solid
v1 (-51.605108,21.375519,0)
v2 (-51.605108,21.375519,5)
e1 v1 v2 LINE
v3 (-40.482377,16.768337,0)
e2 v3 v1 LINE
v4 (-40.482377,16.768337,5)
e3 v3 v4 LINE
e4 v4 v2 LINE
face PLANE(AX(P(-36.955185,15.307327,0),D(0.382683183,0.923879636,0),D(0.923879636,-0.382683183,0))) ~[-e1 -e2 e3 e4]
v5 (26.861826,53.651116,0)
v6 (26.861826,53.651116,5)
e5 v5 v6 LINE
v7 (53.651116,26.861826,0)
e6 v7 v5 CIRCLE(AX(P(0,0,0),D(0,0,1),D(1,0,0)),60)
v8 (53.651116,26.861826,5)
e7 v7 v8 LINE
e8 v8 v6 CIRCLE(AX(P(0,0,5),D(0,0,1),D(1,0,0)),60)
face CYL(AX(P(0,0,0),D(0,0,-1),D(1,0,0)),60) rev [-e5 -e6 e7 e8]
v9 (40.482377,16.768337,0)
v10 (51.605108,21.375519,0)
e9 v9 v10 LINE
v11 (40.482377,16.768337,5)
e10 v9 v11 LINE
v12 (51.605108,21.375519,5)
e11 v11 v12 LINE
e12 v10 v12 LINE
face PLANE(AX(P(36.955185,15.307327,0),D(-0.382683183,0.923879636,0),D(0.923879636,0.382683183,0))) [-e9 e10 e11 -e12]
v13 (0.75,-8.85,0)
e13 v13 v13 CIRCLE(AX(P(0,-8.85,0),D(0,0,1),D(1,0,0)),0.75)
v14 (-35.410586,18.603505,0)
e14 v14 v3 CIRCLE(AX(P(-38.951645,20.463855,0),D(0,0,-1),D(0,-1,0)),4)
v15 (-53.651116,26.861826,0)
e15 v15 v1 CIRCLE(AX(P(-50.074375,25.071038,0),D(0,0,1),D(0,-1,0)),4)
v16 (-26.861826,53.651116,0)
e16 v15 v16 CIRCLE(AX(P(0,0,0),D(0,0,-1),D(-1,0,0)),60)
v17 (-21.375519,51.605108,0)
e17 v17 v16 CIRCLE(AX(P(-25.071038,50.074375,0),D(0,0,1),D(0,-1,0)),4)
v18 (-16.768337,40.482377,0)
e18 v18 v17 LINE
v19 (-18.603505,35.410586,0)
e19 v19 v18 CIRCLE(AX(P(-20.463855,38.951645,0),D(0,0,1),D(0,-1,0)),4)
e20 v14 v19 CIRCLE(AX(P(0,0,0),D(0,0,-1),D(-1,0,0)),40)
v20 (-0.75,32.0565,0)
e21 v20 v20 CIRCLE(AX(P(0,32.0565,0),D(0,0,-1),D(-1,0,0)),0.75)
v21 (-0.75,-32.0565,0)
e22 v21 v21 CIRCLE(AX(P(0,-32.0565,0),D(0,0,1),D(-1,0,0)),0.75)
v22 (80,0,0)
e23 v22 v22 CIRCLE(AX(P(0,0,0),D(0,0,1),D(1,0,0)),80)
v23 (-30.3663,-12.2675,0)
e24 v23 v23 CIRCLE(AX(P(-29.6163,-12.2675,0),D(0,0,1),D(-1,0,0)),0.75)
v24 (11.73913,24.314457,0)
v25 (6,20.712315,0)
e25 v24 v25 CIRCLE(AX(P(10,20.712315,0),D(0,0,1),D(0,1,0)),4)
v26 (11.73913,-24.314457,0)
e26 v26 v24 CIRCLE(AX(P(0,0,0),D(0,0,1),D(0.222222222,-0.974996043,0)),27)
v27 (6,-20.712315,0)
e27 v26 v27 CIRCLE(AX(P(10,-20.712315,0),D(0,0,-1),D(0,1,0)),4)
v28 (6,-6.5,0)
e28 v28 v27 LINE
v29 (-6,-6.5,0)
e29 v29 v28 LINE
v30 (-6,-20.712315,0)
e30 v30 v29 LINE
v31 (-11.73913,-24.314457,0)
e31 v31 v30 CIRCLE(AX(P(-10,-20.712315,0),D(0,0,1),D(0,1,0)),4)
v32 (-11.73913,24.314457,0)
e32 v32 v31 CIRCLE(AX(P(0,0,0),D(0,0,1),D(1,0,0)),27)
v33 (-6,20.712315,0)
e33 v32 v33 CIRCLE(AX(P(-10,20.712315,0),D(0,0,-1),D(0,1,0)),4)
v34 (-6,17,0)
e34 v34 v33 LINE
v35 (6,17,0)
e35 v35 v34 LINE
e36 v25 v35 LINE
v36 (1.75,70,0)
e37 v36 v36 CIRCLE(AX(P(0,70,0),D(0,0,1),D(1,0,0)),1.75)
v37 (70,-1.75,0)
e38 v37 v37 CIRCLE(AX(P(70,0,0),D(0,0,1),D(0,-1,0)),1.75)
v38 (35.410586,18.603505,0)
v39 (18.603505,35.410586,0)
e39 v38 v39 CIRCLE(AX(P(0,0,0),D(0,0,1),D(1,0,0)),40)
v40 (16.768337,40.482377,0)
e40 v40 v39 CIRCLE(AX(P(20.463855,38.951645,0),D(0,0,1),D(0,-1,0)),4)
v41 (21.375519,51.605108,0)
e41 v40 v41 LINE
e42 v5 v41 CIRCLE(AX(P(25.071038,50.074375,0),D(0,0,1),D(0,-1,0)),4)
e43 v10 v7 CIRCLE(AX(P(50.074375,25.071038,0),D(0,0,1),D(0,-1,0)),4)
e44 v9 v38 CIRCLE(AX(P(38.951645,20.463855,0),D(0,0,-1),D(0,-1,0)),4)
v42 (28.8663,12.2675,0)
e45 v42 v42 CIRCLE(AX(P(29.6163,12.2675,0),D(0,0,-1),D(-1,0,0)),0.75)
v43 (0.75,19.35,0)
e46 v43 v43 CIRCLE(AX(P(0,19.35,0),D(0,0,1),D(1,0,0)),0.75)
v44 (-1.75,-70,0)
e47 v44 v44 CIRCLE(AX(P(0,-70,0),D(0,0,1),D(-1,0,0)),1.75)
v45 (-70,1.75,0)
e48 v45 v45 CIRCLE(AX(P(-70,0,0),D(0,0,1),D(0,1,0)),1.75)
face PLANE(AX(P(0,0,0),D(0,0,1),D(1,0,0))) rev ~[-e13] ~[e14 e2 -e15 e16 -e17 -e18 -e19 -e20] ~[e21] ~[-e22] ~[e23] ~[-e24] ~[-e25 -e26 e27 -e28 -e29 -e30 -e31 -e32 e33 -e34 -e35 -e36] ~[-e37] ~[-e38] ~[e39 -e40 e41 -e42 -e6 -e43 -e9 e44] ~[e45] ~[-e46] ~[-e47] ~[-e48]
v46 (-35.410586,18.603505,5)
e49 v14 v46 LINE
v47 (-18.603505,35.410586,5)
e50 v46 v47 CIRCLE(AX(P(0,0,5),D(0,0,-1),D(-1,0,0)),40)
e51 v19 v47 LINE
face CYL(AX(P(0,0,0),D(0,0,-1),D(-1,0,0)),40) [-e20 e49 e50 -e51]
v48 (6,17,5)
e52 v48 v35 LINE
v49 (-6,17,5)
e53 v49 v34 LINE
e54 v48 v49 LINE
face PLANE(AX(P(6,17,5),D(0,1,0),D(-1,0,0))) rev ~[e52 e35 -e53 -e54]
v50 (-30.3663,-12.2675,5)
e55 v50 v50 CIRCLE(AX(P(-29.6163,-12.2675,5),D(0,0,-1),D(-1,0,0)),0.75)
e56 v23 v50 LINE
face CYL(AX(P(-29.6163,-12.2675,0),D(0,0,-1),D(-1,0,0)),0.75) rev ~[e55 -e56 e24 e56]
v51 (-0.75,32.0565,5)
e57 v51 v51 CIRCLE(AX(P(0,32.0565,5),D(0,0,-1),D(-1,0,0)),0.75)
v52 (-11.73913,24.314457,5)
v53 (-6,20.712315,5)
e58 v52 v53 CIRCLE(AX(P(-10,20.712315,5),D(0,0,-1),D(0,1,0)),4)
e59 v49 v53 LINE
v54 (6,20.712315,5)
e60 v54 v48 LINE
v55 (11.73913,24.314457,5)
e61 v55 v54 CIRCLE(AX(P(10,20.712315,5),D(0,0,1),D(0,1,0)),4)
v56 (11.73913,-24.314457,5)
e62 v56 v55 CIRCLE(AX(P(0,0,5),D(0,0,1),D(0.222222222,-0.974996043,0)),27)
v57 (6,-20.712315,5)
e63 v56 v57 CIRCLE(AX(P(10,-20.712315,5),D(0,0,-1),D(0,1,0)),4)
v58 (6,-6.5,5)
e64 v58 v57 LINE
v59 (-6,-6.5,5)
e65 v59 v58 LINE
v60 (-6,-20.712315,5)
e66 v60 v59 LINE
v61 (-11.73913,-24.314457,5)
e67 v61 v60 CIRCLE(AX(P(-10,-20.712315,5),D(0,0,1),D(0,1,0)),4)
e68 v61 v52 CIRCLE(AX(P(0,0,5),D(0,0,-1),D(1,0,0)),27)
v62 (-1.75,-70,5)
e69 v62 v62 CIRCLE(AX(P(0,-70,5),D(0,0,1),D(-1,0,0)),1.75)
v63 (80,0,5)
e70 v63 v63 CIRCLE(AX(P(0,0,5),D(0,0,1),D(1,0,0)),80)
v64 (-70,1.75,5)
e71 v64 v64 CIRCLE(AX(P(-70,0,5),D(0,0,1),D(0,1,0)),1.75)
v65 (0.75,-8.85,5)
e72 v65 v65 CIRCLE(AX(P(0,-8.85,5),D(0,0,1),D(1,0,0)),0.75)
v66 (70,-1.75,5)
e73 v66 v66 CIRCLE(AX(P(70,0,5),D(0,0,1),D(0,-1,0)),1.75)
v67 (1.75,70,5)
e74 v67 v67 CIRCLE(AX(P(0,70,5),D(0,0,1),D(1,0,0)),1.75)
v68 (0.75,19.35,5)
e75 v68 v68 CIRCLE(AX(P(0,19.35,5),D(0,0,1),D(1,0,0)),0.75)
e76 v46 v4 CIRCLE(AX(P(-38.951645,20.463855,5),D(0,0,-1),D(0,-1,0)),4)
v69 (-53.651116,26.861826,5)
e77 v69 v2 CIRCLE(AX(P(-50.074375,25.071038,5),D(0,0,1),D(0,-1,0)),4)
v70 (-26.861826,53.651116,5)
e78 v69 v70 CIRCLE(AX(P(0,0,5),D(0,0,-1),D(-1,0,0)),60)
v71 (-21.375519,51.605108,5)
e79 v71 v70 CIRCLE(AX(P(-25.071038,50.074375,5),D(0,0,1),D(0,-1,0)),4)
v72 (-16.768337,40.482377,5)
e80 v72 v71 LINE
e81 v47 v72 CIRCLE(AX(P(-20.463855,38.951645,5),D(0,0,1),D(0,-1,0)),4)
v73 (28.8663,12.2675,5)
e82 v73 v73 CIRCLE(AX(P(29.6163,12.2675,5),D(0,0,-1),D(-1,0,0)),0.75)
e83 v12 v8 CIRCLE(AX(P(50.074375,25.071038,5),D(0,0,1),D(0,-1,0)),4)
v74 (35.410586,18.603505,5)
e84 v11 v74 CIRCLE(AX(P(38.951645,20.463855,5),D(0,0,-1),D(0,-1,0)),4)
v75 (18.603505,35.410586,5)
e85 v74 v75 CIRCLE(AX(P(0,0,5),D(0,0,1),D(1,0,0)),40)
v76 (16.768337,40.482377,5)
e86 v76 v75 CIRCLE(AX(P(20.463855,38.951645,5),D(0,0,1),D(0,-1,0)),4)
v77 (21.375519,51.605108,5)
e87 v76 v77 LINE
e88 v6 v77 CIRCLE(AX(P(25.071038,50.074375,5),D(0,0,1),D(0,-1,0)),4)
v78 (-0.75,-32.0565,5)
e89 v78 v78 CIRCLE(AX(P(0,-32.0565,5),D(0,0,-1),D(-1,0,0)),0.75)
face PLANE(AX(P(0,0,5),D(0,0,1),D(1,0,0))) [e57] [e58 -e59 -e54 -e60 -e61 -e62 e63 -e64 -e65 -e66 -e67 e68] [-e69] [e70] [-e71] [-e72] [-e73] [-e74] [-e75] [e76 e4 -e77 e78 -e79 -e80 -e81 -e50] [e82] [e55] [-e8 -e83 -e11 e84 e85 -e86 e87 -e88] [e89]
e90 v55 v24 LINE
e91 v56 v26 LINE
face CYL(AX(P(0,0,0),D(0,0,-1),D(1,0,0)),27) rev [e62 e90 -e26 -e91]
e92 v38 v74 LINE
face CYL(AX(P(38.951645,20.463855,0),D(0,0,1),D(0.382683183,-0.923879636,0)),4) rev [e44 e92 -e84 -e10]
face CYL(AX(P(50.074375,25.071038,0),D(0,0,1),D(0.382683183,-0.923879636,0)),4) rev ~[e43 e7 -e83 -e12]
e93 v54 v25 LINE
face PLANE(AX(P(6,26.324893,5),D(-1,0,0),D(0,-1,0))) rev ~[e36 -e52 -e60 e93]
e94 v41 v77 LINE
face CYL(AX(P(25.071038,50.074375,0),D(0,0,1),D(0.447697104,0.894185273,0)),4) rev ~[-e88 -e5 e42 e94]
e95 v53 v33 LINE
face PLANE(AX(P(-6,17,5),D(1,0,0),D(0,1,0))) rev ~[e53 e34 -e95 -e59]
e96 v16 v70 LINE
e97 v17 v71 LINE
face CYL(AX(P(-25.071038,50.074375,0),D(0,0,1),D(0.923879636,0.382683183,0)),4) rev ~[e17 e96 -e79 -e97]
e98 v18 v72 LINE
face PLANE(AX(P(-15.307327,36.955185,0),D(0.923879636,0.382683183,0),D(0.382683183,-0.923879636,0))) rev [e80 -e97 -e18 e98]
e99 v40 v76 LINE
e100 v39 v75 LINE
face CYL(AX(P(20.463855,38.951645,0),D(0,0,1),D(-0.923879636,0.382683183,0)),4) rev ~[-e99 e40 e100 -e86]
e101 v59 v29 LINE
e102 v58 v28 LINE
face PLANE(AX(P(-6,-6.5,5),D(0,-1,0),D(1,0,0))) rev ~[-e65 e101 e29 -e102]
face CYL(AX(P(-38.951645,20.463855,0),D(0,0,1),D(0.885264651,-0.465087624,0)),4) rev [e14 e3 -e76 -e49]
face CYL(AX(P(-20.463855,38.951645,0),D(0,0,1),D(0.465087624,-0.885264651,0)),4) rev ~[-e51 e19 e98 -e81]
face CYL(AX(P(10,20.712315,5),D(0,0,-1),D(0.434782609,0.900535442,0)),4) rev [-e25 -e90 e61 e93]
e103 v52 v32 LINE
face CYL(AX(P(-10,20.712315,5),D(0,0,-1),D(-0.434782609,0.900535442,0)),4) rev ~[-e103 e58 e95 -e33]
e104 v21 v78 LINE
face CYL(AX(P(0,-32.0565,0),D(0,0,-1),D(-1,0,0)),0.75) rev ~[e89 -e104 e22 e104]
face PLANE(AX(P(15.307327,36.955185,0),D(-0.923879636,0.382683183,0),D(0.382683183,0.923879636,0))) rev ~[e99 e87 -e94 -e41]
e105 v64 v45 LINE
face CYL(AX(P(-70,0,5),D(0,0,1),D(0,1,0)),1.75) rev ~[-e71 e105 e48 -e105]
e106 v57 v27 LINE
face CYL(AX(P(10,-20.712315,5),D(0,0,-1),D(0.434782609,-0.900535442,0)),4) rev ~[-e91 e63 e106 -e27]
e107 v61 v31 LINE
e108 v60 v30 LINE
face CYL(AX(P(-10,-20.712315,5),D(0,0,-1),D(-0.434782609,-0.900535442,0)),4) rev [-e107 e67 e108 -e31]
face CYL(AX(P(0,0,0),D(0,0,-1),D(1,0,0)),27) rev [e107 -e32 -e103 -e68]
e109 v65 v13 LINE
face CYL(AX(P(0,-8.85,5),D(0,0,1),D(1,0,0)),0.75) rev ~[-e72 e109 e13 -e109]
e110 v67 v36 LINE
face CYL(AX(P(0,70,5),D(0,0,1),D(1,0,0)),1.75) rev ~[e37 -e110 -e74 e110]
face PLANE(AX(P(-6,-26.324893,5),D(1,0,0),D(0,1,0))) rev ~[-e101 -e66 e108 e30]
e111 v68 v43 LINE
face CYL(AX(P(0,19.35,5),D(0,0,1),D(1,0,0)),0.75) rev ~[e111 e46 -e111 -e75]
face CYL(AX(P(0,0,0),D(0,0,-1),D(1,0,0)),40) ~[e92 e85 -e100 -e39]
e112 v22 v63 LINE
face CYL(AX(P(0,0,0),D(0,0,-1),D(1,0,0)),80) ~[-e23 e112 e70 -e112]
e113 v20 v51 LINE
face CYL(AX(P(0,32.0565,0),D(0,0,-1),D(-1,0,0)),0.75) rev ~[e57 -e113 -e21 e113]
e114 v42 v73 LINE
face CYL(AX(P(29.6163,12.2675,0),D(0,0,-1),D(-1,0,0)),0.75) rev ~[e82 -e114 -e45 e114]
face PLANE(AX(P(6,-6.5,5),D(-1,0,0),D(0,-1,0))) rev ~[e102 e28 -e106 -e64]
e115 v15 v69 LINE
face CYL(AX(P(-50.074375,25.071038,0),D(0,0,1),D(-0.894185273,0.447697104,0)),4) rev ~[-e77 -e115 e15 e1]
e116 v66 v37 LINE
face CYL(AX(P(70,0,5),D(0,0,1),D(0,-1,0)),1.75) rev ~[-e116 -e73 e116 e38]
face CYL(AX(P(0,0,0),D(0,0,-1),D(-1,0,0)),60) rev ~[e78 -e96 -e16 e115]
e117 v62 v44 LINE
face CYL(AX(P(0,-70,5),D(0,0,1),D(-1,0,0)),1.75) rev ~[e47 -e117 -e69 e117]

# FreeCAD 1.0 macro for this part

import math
import FreeCAD as App
import Part
import Sketcher

V = App.Vector
Q = App.Units.Quantity


def edges_at(feature, points):
    """Names of the edges that pass closest to the given points."""
    edges = feature.Shape.Edges
    near = lambda p: min(range(len(edges)), key=lambda i: edges[i].distToShape(Part.Vertex(*p))[0])
    return sorted({f"Edge{near(p) + 1}" for p in points})

doc = App.newDocument("Part")
body = doc.addObject("PartDesign::Body", "Body")

# Sketch on XY plane
sketch1 = doc.addObject("Sketcher::SketchObject", "Sketch")
body.addObject(sketch1)
sketch1.AttachmentSupport = (doc.XY_Plane, [""])
sketch1.MapMode = "FlatFace"
sketch1.addGeometry([
    Part.Circle(V(0, 0, 0), V(0, 0, 1), 80),
    Part.Circle(V(0, 0, 0), V(0, 0, 1), 27),
], False)
sketch1.addConstraint([
    Sketcher.Constraint("Coincident", 0, 3, -1, 1),
    Sketcher.Constraint("Coincident", 1, 3, -1, 1),
    Sketcher.Constraint("Diameter", 0, Q("160 mm")),
    Sketcher.Constraint("Diameter", 1, Q("54 mm")),
])
pad1 = doc.addObject("PartDesign::Pad", "Pad")
body.addObject(pad1)
pad1.Profile = sketch1
pad1.Length = 5

# Sketch on XY plane
sketch2 = doc.addObject("Sketcher::SketchObject", "Sketch001")
body.addObject(sketch2)
sketch2.AttachmentSupport = (doc.XY_Plane, [""])
sketch2.MapMode = "FlatFace"
sketch2.addGeometry([
    Part.ArcOfCircle(Part.Circle(V(0, 0, 0), V(0, 0, 1), 40), math.radians(22.499985), math.radians(67.500015)),
    Part.LineSegment(V(36.955185, 15.307327, 0), V(55.4328, 22.961, 0)),
    Part.ArcOfCircle(Part.Circle(V(0, 0, 0), V(0, 0, 1), 60), math.radians(22.499985), math.radians(67.500015)),
    Part.LineSegment(V(22.961, 55.4328, 0), V(15.307327, 36.955185, 0)),
], False)
sketch2.addConstraint([
    Sketcher.Constraint("Coincident", 0, 1, 1, 1),
    Sketcher.Constraint("Coincident", 1, 2, 2, 1),
    Sketcher.Constraint("Coincident", 2, 2, 3, 1),
    Sketcher.Constraint("Coincident", 3, 2, 0, 2),
    Sketcher.Constraint("Coincident", 0, 3, -1, 1),
    Sketcher.Constraint("Coincident", 2, 3, -1, 1),
    Sketcher.Constraint("Radius", 0, Q("40 mm")),
    Sketcher.Constraint("Radius", 2, Q("60 mm")),
    Sketcher.Constraint("Angle", 1, Q("22.5 deg")),
    Sketcher.Constraint("Angle", 3, Q("-112.5 deg")),
    Sketcher.Constraint("DistanceY", -1, 1, 1, 2, Q("22.961 mm")),
    Sketcher.Constraint("DistanceX", -1, 1, 2, 2, Q("22.961 mm")),
])
pocket1 = doc.addObject("PartDesign::Pocket", "Pocket")
body.addObject(pocket1)
pocket1.Profile = sketch2
pocket1.Length = 5
pocket1.Reversed = True
doc.recompute()

fillet = doc.addObject("PartDesign::Fillet", "Fillet")
body.addObject(fillet)
fillet.Base = (pocket1, edges_at(pocket1, [
    (22.961, 55.433, 2.5),
    (15.307, 36.955, 2.5),
    (36.955, 15.307, 2.5),
    (55.433, 22.961, 2.5),
]))
fillet.Radius = 4

# Sketch on XY plane
sketch3 = doc.addObject("Sketcher::SketchObject", "Sketch002")
body.addObject(sketch3)
sketch3.AttachmentSupport = (doc.XY_Plane, [""])
sketch3.MapMode = "FlatFace"
sketch3.AttachmentOffset = App.Placement(V(0, 0, 5), App.Rotation())
sketch3.addGeometry(Part.Circle(V(0, 70, 0), V(0, 0, 1), 1.75), False)
sketch3.addConstraint([
    Sketcher.Constraint("PointOnObject", 0, 3, -2),
    Sketcher.Constraint("Diameter", 0, Q("3.5 mm")),
    Sketcher.Constraint("DistanceY", -1, 1, 0, 3, Q("70 mm")),
])
pocket2 = doc.addObject("PartDesign::Pocket", "Pocket001")
body.addObject(pocket2)
pocket2.Profile = sketch3
pocket2.Length = 5
doc.recompute()

polarpattern = doc.addObject("PartDesign::PolarPattern", "PolarPattern")
body.addObject(polarpattern)
polarpattern.Originals = [pocket2]
polarpattern.Axis = (doc.Z_Axis, [""])
polarpattern.Angle = 360
polarpattern.Occurrences = 4
body.Tip = polarpattern

# Sketch on XY plane
sketch4 = doc.addObject("Sketcher::SketchObject", "Sketch003")
body.addObject(sketch4)
sketch4.AttachmentSupport = (doc.XY_Plane, [""])
sketch4.MapMode = "FlatFace"
sketch4.AttachmentOffset = App.Placement(V(0, 0, 5), App.Rotation())
sketch4.addGeometry([
    Part.ArcOfCircle(Part.Circle(V(0, 0, 0), V(0, 0, 1), 27), math.radians(77.160412), math.radians(102.839588)),  # 0
    Part.LineSegment(V(-6, 26.324893, 0), V(-6, 17, 0)),  # 1
    Part.LineSegment(V(-6, 17, 0), V(6, 17, 0)),  # 2
    Part.LineSegment(V(6, 17, 0), V(6, 26.324893, 0)),  # 3
    Part.Circle(V(0, 19.35, 0), V(0, 0, 1), 0.75),  # 4
    Part.LineSegment(V(-6, -6.5, 0), V(-6, -26.324893, 0)),  # 5
    Part.ArcOfCircle(Part.Circle(V(0, 0, 0), V(0, 0, 1), 27), math.radians(-102.839588), math.radians(-77.160412)),  # 6
    Part.LineSegment(V(6, -26.324893, 0), V(6, -6.5, 0)),  # 7
    Part.LineSegment(V(6, -6.5, 0), V(-6, -6.5, 0)),  # 8
    Part.Circle(V(0, -8.85, 0), V(0, 0, 1), 0.75),  # 9
], False)
sketch4.addConstraint([
    Sketcher.Constraint("Coincident", 0, 2, 1, 1),
    Sketcher.Constraint("Coincident", 1, 2, 2, 1),
    Sketcher.Constraint("Coincident", 2, 2, 3, 1),
    Sketcher.Constraint("Coincident", 3, 2, 0, 1),
    Sketcher.Constraint("Coincident", 5, 2, 6, 1),
    Sketcher.Constraint("Coincident", 6, 2, 7, 1),
    Sketcher.Constraint("Coincident", 7, 2, 8, 1),
    Sketcher.Constraint("Coincident", 8, 2, 5, 1),
    Sketcher.Constraint("Vertical", 1),
    Sketcher.Constraint("Horizontal", 2),
    Sketcher.Constraint("Vertical", 3),
    Sketcher.Constraint("Vertical", 5),
    Sketcher.Constraint("Vertical", 7),
    Sketcher.Constraint("Horizontal", 8),
    Sketcher.Constraint("Coincident", 0, 3, -1, 1),
    Sketcher.Constraint("Coincident", 6, 3, -1, 1),
    Sketcher.Constraint("Equal", 0, 6),
    Sketcher.Constraint("Equal", 4, 9),
    Sketcher.Constraint("PointOnObject", 4, 3, -2),
    Sketcher.Constraint("PointOnObject", 9, 3, -2),
    Sketcher.Constraint("Horizontal", 0, 2, 3, 2),
    Sketcher.Constraint("Horizontal", 5, 2, 6, 2),
    Sketcher.Constraint("Vertical", 1, 2, 5, 2),
    Sketcher.Constraint("Diameter", 4, Q("1.5 mm")),
    Sketcher.Constraint("DistanceX", 2, 1, 2, 2, Q("12 mm")),
    Sketcher.Constraint("Radius", 0, Q("27 mm")),
    Sketcher.Constraint("DistanceY", 9, 3, 4, 3, Q("28.2 mm")),
    Sketcher.Constraint("DistanceY", -1, 1, 1, 2, Q("17 mm")),
    Sketcher.Constraint("DistanceY", 7, 2, -1, 1, Q("6.5 mm")),
    Sketcher.Constraint("DistanceY", -1, 1, 4, 3, Q("19.35 mm")),
])
pad2 = doc.addObject("PartDesign::Pad", "Pad001")
body.addObject(pad2)
pad2.Profile = sketch4
pad2.Length = 5
pad2.Reversed = True
doc.recompute()

fillet2 = doc.addObject("PartDesign::Fillet", "Fillet001")
body.addObject(fillet2)
fillet2.Base = (pad2, edges_at(pad2, [
    (-6, 26.325, 2.5),
    (6, 26.325, 2.5),
    (-6, -26.325, 2.5),
    (6, -26.325, 2.5),
]))
fillet2.Radius = 4

# Sketch on XY plane
sketch5 = doc.addObject("Sketcher::SketchObject", "Sketch004")
body.addObject(sketch5)
sketch5.AttachmentSupport = (doc.XY_Plane, [""])
sketch5.MapMode = "FlatFace"
sketch5.addGeometry([
    Part.Circle(V(0, -32.0565, 0), V(0, 0, 1), 0.75),
    Part.Circle(V(-29.6163, -12.2675, 0), V(0, 0, 1), 0.75),
    Part.Circle(V(0, 32.0565, 0), V(0, 0, 1), 0.75),
    Part.Circle(V(29.6163, 12.2675, 0), V(0, 0, 1), 0.75),
], False)
sketch5.addConstraint([
    Sketcher.Constraint("Equal", 0, 1),
    Sketcher.Constraint("Equal", 1, 2),
    Sketcher.Constraint("Equal", 2, 3),
    Sketcher.Constraint("Symmetric", 0, 3, 2, 3, -1, 1),
    Sketcher.Constraint("Symmetric", 1, 3, 3, 3, -1, 1),
    Sketcher.Constraint("PointOnObject", 0, 3, -2),
    Sketcher.Constraint("Diameter", 0, Q("1.5 mm")),
    Sketcher.Constraint("DistanceY", 0, 3, 2, 3, Q("64.113 mm")),
    Sketcher.Constraint("DistanceY", 0, 3, 1, 3, Q("19.789 mm")),
    Sketcher.Constraint("DistanceX", 1, 3, -1, 1, Q("29.6163 mm")),
])
pocket3 = doc.addObject("PartDesign::Pocket", "Pocket002")
body.addObject(pocket3)
pocket3.Profile = sketch5
pocket3.Length = 5
pocket3.Reversed = True
doc.recompute()

mirrored = doc.addObject("PartDesign::Mirrored", "Mirrored")
body.addObject(mirrored)
mirrored.Originals = [pocket1, fillet]
mirrored.MirrorPlane = (doc.YZ_Plane, [""])
body.Tip = mirrored

doc.recompute()
